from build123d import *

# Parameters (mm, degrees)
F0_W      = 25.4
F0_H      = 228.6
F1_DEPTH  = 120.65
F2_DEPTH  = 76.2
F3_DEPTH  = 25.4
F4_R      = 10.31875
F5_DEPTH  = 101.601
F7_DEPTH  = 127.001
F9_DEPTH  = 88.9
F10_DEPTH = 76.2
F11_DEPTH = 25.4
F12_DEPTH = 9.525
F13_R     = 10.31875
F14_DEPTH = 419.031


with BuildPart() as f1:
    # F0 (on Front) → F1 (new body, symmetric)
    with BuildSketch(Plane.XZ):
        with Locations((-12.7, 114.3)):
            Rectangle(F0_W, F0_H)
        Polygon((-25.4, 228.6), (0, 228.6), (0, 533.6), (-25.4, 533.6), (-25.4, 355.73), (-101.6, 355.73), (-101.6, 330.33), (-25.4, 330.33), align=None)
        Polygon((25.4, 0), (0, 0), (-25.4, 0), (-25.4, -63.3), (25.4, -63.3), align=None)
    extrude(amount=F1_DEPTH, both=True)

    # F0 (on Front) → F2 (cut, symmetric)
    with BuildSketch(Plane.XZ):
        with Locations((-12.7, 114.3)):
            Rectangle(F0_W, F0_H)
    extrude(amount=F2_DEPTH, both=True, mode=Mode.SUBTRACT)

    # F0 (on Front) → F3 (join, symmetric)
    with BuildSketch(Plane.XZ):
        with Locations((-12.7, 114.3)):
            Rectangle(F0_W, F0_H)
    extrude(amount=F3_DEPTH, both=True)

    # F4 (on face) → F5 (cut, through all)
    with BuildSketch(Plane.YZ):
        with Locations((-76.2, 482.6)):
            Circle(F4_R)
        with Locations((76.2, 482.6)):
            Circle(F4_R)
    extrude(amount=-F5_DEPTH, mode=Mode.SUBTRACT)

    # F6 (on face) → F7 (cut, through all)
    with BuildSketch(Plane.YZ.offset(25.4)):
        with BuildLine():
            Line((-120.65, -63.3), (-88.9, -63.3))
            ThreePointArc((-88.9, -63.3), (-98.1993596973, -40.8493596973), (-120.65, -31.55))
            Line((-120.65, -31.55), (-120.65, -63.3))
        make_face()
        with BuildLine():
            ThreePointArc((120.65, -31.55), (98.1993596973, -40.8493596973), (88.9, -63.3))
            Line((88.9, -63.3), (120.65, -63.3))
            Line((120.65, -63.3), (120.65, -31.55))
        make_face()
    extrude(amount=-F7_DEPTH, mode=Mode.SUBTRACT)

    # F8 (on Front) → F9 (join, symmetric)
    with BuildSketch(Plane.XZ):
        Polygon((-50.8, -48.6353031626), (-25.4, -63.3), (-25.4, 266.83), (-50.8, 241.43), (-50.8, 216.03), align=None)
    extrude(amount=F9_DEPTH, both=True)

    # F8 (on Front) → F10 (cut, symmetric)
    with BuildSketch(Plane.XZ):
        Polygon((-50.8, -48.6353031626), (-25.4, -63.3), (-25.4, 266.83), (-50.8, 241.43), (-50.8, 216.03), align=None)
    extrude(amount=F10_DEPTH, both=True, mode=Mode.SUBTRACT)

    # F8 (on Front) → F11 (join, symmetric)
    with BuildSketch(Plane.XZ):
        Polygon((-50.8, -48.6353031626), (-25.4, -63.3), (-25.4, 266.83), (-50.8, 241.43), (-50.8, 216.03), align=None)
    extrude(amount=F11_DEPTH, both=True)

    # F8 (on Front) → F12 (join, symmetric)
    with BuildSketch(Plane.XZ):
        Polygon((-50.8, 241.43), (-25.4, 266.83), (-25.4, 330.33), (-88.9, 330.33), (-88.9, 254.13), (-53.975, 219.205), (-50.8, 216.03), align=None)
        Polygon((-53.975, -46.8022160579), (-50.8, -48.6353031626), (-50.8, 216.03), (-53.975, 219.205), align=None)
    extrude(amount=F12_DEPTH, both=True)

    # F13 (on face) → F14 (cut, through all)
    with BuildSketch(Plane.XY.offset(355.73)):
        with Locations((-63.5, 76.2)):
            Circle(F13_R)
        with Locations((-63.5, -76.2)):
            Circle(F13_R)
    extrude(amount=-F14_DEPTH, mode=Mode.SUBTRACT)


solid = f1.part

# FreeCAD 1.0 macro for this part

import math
import FreeCAD as App
import Part
import Sketcher
Q = App.Units.Quantity

doc = App.newDocument("Part")
body = doc.addObject("PartDesign::Body", "Body")

# Sketch on XZ plane
sketch1 = doc.addObject("Sketcher::SketchObject", "Sketch")
body.addObject(sketch1)
sketch1.AttachmentSupport = (doc.XZ_Plane, [""])
sketch1.MapMode = "FlatFace"
sketch1.addGeometry(Part.LineSegment(App.Vector(0, 0, 0), App.Vector(0, 533.6, 0)), False)
sketch1.addGeometry(Part.LineSegment(App.Vector(0, 533.6, 0), App.Vector(-25.4, 533.6, 0)), False)
sketch1.addGeometry(Part.LineSegment(App.Vector(-25.4, 533.6, 0), App.Vector(-25.4, 355.73, 0)), False)
sketch1.addGeometry(Part.LineSegment(App.Vector(-25.4, 355.73, 0), App.Vector(-101.6, 355.73, 0)), False)
sketch1.addGeometry(Part.LineSegment(App.Vector(-101.6, 355.73, 0), App.Vector(-101.6, 330.33, 0)), False)
sketch1.addGeometry(Part.LineSegment(App.Vector(-101.6, 330.33, 0), App.Vector(-25.4, 330.33, 0)), False)
sketch1.addGeometry(Part.LineSegment(App.Vector(-25.4, 330.33, 0), App.Vector(-25.4, -63.3, 0)), False)
sketch1.addGeometry(Part.LineSegment(App.Vector(-25.4, -63.3, 0), App.Vector(25.4, -63.3, 0)), False)
sketch1.addGeometry(Part.LineSegment(App.Vector(25.4, -63.3, 0), App.Vector(25.4, 0, 0)), False)
sketch1.addGeometry(Part.LineSegment(App.Vector(25.4, 0, 0), App.Vector(0, 0, 0)), False)
sketch1.addConstraint(Sketcher.Constraint("Coincident", 0, 2, 1, 1))
sketch1.addConstraint(Sketcher.Constraint("Coincident", 1, 2, 2, 1))
sketch1.addConstraint(Sketcher.Constraint("Coincident", 2, 2, 3, 1))
sketch1.addConstraint(Sketcher.Constraint("Coincident", 3, 2, 4, 1))
sketch1.addConstraint(Sketcher.Constraint("Coincident", 4, 2, 5, 1))
sketch1.addConstraint(Sketcher.Constraint("Coincident", 5, 2, 6, 1))
sketch1.addConstraint(Sketcher.Constraint("Coincident", 6, 2, 7, 1))
sketch1.addConstraint(Sketcher.Constraint("Coincident", 7, 2, 8, 1))
sketch1.addConstraint(Sketcher.Constraint("Coincident", 8, 2, 9, 1))
sketch1.addConstraint(Sketcher.Constraint("Coincident", 9, 2, 0, 1))
sketch1.addConstraint(Sketcher.Constraint("Vertical", 0))
sketch1.addConstraint(Sketcher.Constraint("Horizontal", 1))
sketch1.addConstraint(Sketcher.Constraint("Vertical", 2))
sketch1.addConstraint(Sketcher.Constraint("Horizontal", 3))
sketch1.addConstraint(Sketcher.Constraint("Vertical", 4))
sketch1.addConstraint(Sketcher.Constraint("Horizontal", 5))
sketch1.addConstraint(Sketcher.Constraint("Vertical", 6))
sketch1.addConstraint(Sketcher.Constraint("Horizontal", 7))
sketch1.addConstraint(Sketcher.Constraint("Vertical", 8))
sketch1.addConstraint(Sketcher.Constraint("Horizontal", 9))
sketch1.addConstraint(Sketcher.Constraint("Coincident", 9, 2, -1, 1))
sketch1.addConstraint(Sketcher.Constraint("Vertical", 2, 2, 5, 2))
sketch1.addConstraint(Sketcher.Constraint("Equal", 1, 9))
sketch1.addConstraint(Sketcher.Constraint("Equal", 9, 4))
sketch1.addConstraint(Sketcher.Constraint("DistanceX", 1, 2, 1, 1, Q("1 in")))
sketch1.addConstraint(Sketcher.Constraint("DistanceX", 3, 2, 3, 1, Q("3 in")))
sketch1.addConstraint(Sketcher.Constraint("DistanceY", 6, 2, 1, 2, Q("23.5 in")))
sketch1.addConstraint(Sketcher.Constraint("DistanceY", 0, 1, 0, 2, Q("533.6 mm")))
sketch1.addConstraint(Sketcher.Constraint("DistanceY", 2, 2, 2, 1, Q("177.87 mm")))
pad1 = doc.addObject("PartDesign::Pad", "Pad")
body.addObject(pad1)
pad1.Profile = sketch1
pad1.Length = Q("9.5 in")
pad1.Midplane = True

# Sketch on XZ plane
sketch2 = doc.addObject("Sketcher::SketchObject", "Sketch001")
body.addObject(sketch2)
sketch2.AttachmentSupport = (doc.XZ_Plane, [""])
sketch2.MapMode = "FlatFace"
sketch2.addGeometry(Part.LineSegment(App.Vector(-25.4, 228.6, 0), App.Vector(-25.4, 0, 0)), False)
sketch2.addGeometry(Part.LineSegment(App.Vector(-25.4, 0, 0), App.Vector(0, 0, 0)), False)
sketch2.addGeometry(Part.LineSegment(App.Vector(0, 0, 0), App.Vector(0, 228.6, 0)), False)
sketch2.addGeometry(Part.LineSegment(App.Vector(0, 228.6, 0), App.Vector(-25.4, 228.6, 0)), False)
sketch2.addConstraint(Sketcher.Constraint("Coincident", 0, 2, 1, 1))
sketch2.addConstraint(Sketcher.Constraint("Coincident", 1, 2, 2, 1))
sketch2.addConstraint(Sketcher.Constraint("Coincident", 2, 2, 3, 1))
sketch2.addConstraint(Sketcher.Constraint("Coincident", 3, 2, 0, 1))
sketch2.addConstraint(Sketcher.Constraint("Vertical", 0))
sketch2.addConstraint(Sketcher.Constraint("Horizontal", 1))
sketch2.addConstraint(Sketcher.Constraint("Vertical", 2))
sketch2.addConstraint(Sketcher.Constraint("Horizontal", 3))
sketch2.addConstraint(Sketcher.Constraint("Coincident", 1, 2, -1, 1))
sketch2.addConstraint(Sketcher.Constraint("DistanceX", 1, 1, 1, 2, Q("1 in")))
sketch2.addConstraint(Sketcher.Constraint("DistanceY", 0, 2, 0, 1, Q("9 in")))
pocket1 = doc.addObject("PartDesign::Pocket", "Pocket")
body.addObject(pocket1)
pocket1.Profile = sketch2
pocket1.Length = Q("6 in")
pocket1.Midplane = True

# Sketch on XZ plane
sketch3 = doc.addObject("Sketcher::SketchObject", "Sketch002")
body.addObject(sketch3)
sketch3.AttachmentSupport = (doc.XZ_Plane, [""])
sketch3.MapMode = "FlatFace"
sketch3.addGeometry(Part.LineSegment(App.Vector(-25.4, 228.6, 0), App.Vector(-25.4, 0, 0)), False)
sketch3.addGeometry(Part.LineSegment(App.Vector(-25.4, 0, 0), App.Vector(0, 0, 0)), False)
sketch3.addGeometry(Part.LineSegment(App.Vector(0, 0, 0), App.Vector(0, 228.6, 0)), False)
sketch3.addGeometry(Part.LineSegment(App.Vector(0, 228.6, 0), App.Vector(-25.4, 228.6, 0)), False)
sketch3.addConstraint(Sketcher.Constraint("Coincident", 0, 2, 1, 1))
sketch3.addConstraint(Sketcher.Constraint("Coincident", 1, 2, 2, 1))
sketch3.addConstraint(Sketcher.Constraint("Coincident", 2, 2, 3, 1))
sketch3.addConstraint(Sketcher.Constraint("Coincident", 3, 2, 0, 1))
sketch3.addConstraint(Sketcher.Constraint("Vertical", 0))
sketch3.addConstraint(Sketcher.Constraint("Horizontal", 1))
sketch3.addConstraint(Sketcher.Constraint("Vertical", 2))
sketch3.addConstraint(Sketcher.Constraint("Horizontal", 3))
sketch3.addConstraint(Sketcher.Constraint("Coincident", 1, 2, -1, 1))
sketch3.addConstraint(Sketcher.Constraint("DistanceX", 1, 1, 1, 2, Q("1 in")))
sketch3.addConstraint(Sketcher.Constraint("DistanceY", 0, 2, 0, 1, Q("9 in")))
pad2 = doc.addObject("PartDesign::Pad", "Pad001")
body.addObject(pad2)
pad2.Profile = sketch3
pad2.Length = Q("2 in")
pad2.Midplane = True

# Sketch on YZ plane
sketch4 = doc.addObject("Sketcher::SketchObject", "Sketch003")
body.addObject(sketch4)
sketch4.AttachmentSupport = (doc.YZ_Plane, [""])
sketch4.MapMode = "FlatFace"
sketch4.addGeometry(Part.Circle(App.Vector(-76.2, 482.6, 0), App.Vector(0, 0, 1), 10.31875), False)
sketch4.addGeometry(Part.Circle(App.Vector(76.2, 482.6, 0), App.Vector(0, 0, 1), 10.31875), False)
sketch4.addConstraint(Sketcher.Constraint("Equal", 0, 1))
sketch4.addConstraint(Sketcher.Constraint("Symmetric", 0, 3, 1, 3, -2))
sketch4.addConstraint(Sketcher.Constraint("Diameter", 0, Q("0.8125 in")))
sketch4.addConstraint(Sketcher.Constraint("DistanceX", 0, 3, -1, 1, Q("3 in")))
sketch4.addConstraint(Sketcher.Constraint("DistanceY", -1, 1, 0, 3, Q("19 in")))
pocket2 = doc.addObject("PartDesign::Pocket", "Pocket001")
body.addObject(pocket2)
pocket2.Profile = sketch4
pocket2.Type = "ThroughAll"

# Sketch on YZ plane
sketch5 = doc.addObject("Sketcher::SketchObject", "Sketch004")
body.addObject(sketch5)
sketch5.AttachmentSupport = (doc.YZ_Plane, [""])
sketch5.MapMode = "FlatFace"
sketch5.AttachmentOffset = App.Placement(App.Vector(0, 0, 1 * 25.4), App.Rotation())
sketch5.addGeometry(Part.LineSegment(App.Vector(-120.65, -63.3, 0), App.Vector(-88.9, -63.3, 0)), False)
sketch5.addGeometry(Part.ArcOfCircle(Part.Circle(App.Vector(-120.65, -63.3, 0), App.Vector(0, 0, 1), 31.75), math.radians(0), math.radians(90)), False)
sketch5.addGeometry(Part.LineSegment(App.Vector(-120.65, -31.55, 0), App.Vector(-120.65, -63.3, 0)), False)
sketch5.addGeometry(Part.ArcOfCircle(Part.Circle(App.Vector(120.65, -63.3, 0), App.Vector(0, 0, 1), 31.75), math.radians(90), math.radians(180)), False)
sketch5.addGeometry(Part.LineSegment(App.Vector(88.9, -63.3, 0), App.Vector(120.65, -63.3, 0)), False)
sketch5.addGeometry(Part.LineSegment(App.Vector(120.65, -63.3, 0), App.Vector(120.65, -31.55, 0)), False)
sketch5.addConstraint(Sketcher.Constraint("Coincident", 0, 2, 1, 1))
sketch5.addConstraint(Sketcher.Constraint("Coincident", 1, 2, 2, 1))
sketch5.addConstraint(Sketcher.Constraint("Coincident", 2, 2, 0, 1))
sketch5.addConstraint(Sketcher.Constraint("Coincident", 3, 2, 4, 1))
sketch5.addConstraint(Sketcher.Constraint("Coincident", 4, 2, 5, 1))
sketch5.addConstraint(Sketcher.Constraint("Coincident", 5, 2, 3, 1))
sketch5.addConstraint(Sketcher.Constraint("Horizontal", 0))
sketch5.addConstraint(Sketcher.Constraint("Vertical", 2))
sketch5.addConstraint(Sketcher.Constraint("Horizontal", 4))
sketch5.addConstraint(Sketcher.Constraint("Vertical", 5))
sketch5.addConstraint(Sketcher.Constraint("Coincident", 2, 2, 1, 3))
sketch5.addConstraint(Sketcher.Constraint("Coincident", 4, 2, 3, 3))
sketch5.addConstraint(Sketcher.Constraint("Equal", 1, 3))
sketch5.addConstraint(Sketcher.Constraint("Symmetric", 1, 3, 3, 3, -2))
sketch5.addConstraint(Sketcher.Constraint("Radius", 1, Q("1.25 in")))
sketch5.addConstraint(Sketcher.Constraint("DistanceX", 0, 2, 3, 2, Q("7 in")))
sketch5.addConstraint(Sketcher.Constraint("DistanceY", 1, 3, -1, 1, Q("63.3 mm")))
pocket3 = doc.addObject("PartDesign::Pocket", "Pocket002")
body.addObject(pocket3)
pocket3.Profile = sketch5
pocket3.Type = "ThroughAll"

# Sketch on XZ plane
sketch6 = doc.addObject("Sketcher::SketchObject", "Sketch005")
body.addObject(sketch6)
sketch6.AttachmentSupport = (doc.XZ_Plane, [""])
sketch6.MapMode = "FlatFace"
sketch6.addGeometry(Part.LineSegment(App.Vector(-50.8, -48.635303, 0), App.Vector(-25.4, -63.3, 0)), False)
sketch6.addGeometry(Part.LineSegment(App.Vector(-25.4, -63.3, 0), App.Vector(-25.4, 266.83, 0)), False)
sketch6.addGeometry(Part.LineSegment(App.Vector(-25.4, 266.83, 0), App.Vector(-50.8, 241.43, 0)), False)
sketch6.addGeometry(Part.LineSegment(App.Vector(-50.8, 241.43, 0), App.Vector(-50.8, -48.635303, 0)), False)
sketch6.addConstraint(Sketcher.Constraint("Coincident", 0, 2, 1, 1))
sketch6.addConstraint(Sketcher.Constraint("Coincident", 1, 2, 2, 1))
sketch6.addConstraint(Sketcher.Constraint("Coincident", 2, 2, 3, 1))
sketch6.addConstraint(Sketcher.Constraint("Coincident", 3, 2, 0, 1))
sketch6.addConstraint(Sketcher.Constraint("Vertical", 1))
sketch6.addConstraint(Sketcher.Constraint("Vertical", 3))
sketch6.addConstraint(Sketcher.Constraint("DistanceX", 0, 2, -1, 1, Q("1 in")))
sketch6.addConstraint(Sketcher.Constraint("DistanceX", 2, 2, -1, 1, Q("2 in")))
sketch6.addConstraint(Sketcher.Constraint("Angle", 0, Q("-30 deg")))
sketch6.addConstraint(Sketcher.Constraint("Angle", 2, Q("-135 deg")))
sketch6.addConstraint(Sketcher.Constraint("DistanceY", 1, 1, 1, 2, Q("330.13 mm")))
sketch6.addConstraint(Sketcher.Constraint("DistanceY", 0, 2, -1, 1, Q("63.3 mm")))
pad3 = doc.addObject("PartDesign::Pad", "Pad002")
body.addObject(pad3)
pad3.Profile = sketch6
pad3.Length = Q("7 in")
pad3.Midplane = True

# Sketch on XZ plane
sketch7 = doc.addObject("Sketcher::SketchObject", "Sketch006")
body.addObject(sketch7)
sketch7.AttachmentSupport = (doc.XZ_Plane, [""])
sketch7.MapMode = "FlatFace"
sketch7.addGeometry(Part.LineSegment(App.Vector(-50.8, -48.635303, 0), App.Vector(-25.4, -63.3, 0)), False)
sketch7.addGeometry(Part.LineSegment(App.Vector(-25.4, -63.3, 0), App.Vector(-25.4, 266.83, 0)), False)
sketch7.addGeometry(Part.LineSegment(App.Vector(-25.4, 266.83, 0), App.Vector(-50.8, 241.43, 0)), False)
sketch7.addGeometry(Part.LineSegment(App.Vector(-50.8, 241.43, 0), App.Vector(-50.8, -48.635303, 0)), False)
sketch7.addConstraint(Sketcher.Constraint("Coincident", 0, 2, 1, 1))
sketch7.addConstraint(Sketcher.Constraint("Coincident", 1, 2, 2, 1))
sketch7.addConstraint(Sketcher.Constraint("Coincident", 2, 2, 3, 1))
sketch7.addConstraint(Sketcher.Constraint("Coincident", 3, 2, 0, 1))
sketch7.addConstraint(Sketcher.Constraint("Vertical", 1))
sketch7.addConstraint(Sketcher.Constraint("Vertical", 3))
sketch7.addConstraint(Sketcher.Constraint("DistanceX", 0, 2, -1, 1, Q("1 in")))
sketch7.addConstraint(Sketcher.Constraint("DistanceX", 2, 2, -1, 1, Q("2 in")))
sketch7.addConstraint(Sketcher.Constraint("Angle", 0, Q("-30 deg")))
sketch7.addConstraint(Sketcher.Constraint("Angle", 2, Q("-135 deg")))
sketch7.addConstraint(Sketcher.Constraint("DistanceY", 1, 1, 1, 2, Q("330.13 mm")))
sketch7.addConstraint(Sketcher.Constraint("DistanceY", 0, 2, -1, 1, Q("63.3 mm")))
pocket4 = doc.addObject("PartDesign::Pocket", "Pocket003")
body.addObject(pocket4)
pocket4.Profile = sketch7
pocket4.Length = Q("6 in")
pocket4.Midplane = True

# Sketch on XZ plane
sketch8 = doc.addObject("Sketcher::SketchObject", "Sketch007")
body.addObject(sketch8)
sketch8.AttachmentSupport = (doc.XZ_Plane, [""])
sketch8.MapMode = "FlatFace"
sketch8.addGeometry(Part.LineSegment(App.Vector(-50.8, -48.635303, 0), App.Vector(-25.4, -63.3, 0)), False)
sketch8.addGeometry(Part.LineSegment(App.Vector(-25.4, -63.3, 0), App.Vector(-25.4, 266.83, 0)), False)
sketch8.addGeometry(Part.LineSegment(App.Vector(-25.4, 266.83, 0), App.Vector(-50.8, 241.43, 0)), False)
sketch8.addGeometry(Part.LineSegment(App.Vector(-50.8, 241.43, 0), App.Vector(-50.8, -48.635303, 0)), False)
sketch8.addConstraint(Sketcher.Constraint("Coincident", 0, 2, 1, 1))
sketch8.addConstraint(Sketcher.Constraint("Coincident", 1, 2, 2, 1))
sketch8.addConstraint(Sketcher.Constraint("Coincident", 2, 2, 3, 1))
sketch8.addConstraint(Sketcher.Constraint("Coincident", 3, 2, 0, 1))
sketch8.addConstraint(Sketcher.Constraint("Vertical", 1))
sketch8.addConstraint(Sketcher.Constraint("Vertical", 3))
sketch8.addConstraint(Sketcher.Constraint("DistanceX", 0, 2, -1, 1, Q("1 in")))
sketch8.addConstraint(Sketcher.Constraint("DistanceX", 2, 2, -1, 1, Q("2 in")))
sketch8.addConstraint(Sketcher.Constraint("Angle", 0, Q("-30 deg")))
sketch8.addConstraint(Sketcher.Constraint("Angle", 2, Q("-135 deg")))
sketch8.addConstraint(Sketcher.Constraint("DistanceY", 1, 1, 1, 2, Q("330.13 mm")))
sketch8.addConstraint(Sketcher.Constraint("DistanceY", 0, 2, -1, 1, Q("63.3 mm")))
pad4 = doc.addObject("PartDesign::Pad", "Pad003")
body.addObject(pad4)
pad4.Profile = sketch8
pad4.Length = Q("2 in")
pad4.Midplane = True

# Sketch on XZ plane
sketch9 = doc.addObject("Sketcher::SketchObject", "Sketch008")
body.addObject(sketch9)
sketch9.AttachmentSupport = (doc.XZ_Plane, [""])
sketch9.MapMode = "FlatFace"
sketch9.addGeometry(Part.LineSegment(App.Vector(-50.8, 241.43, 0), App.Vector(-25.4, 266.83, 0)), False)
sketch9.addGeometry(Part.LineSegment(App.Vector(-25.4, 266.83, 0), App.Vector(-25.4, 330.33, 0)), False)
sketch9.addGeometry(Part.LineSegment(App.Vector(-25.4, 330.33, 0), App.Vector(-88.9, 330.33, 0)), False)
sketch9.addGeometry(Part.LineSegment(App.Vector(-88.9, 330.33, 0), App.Vector(-88.9, 254.13, 0)), False)
sketch9.addGeometry(Part.LineSegment(App.Vector(-88.9, 254.13, 0), App.Vector(-53.975, 219.205, 0)), False)
sketch9.addGeometry(Part.LineSegment(App.Vector(-53.975, 219.205, 0), App.Vector(-53.975, -46.802216, 0)), False)
sketch9.addGeometry(Part.LineSegment(App.Vector(-53.975, -46.802216, 0), App.Vector(-50.8, -48.635303, 0)), False)
sketch9.addGeometry(Part.LineSegment(App.Vector(-50.8, -48.635303, 0), App.Vector(-50.8, 241.43, 0)), False)
sketch9.addConstraint(Sketcher.Constraint("Coincident", 0, 2, 1, 1))
sketch9.addConstraint(Sketcher.Constraint("Coincident", 1, 2, 2, 1))
sketch9.addConstraint(Sketcher.Constraint("Coincident", 2, 2, 3, 1))
sketch9.addConstraint(Sketcher.Constraint("Coincident", 3, 2, 4, 1))
sketch9.addConstraint(Sketcher.Constraint("Coincident", 4, 2, 5, 1))
sketch9.addConstraint(Sketcher.Constraint("Coincident", 5, 2, 6, 1))
sketch9.addConstraint(Sketcher.Constraint("Coincident", 6, 2, 7, 1))
sketch9.addConstraint(Sketcher.Constraint("Coincident", 7, 2, 0, 1))
sketch9.addConstraint(Sketcher.Constraint("Vertical", 1))
sketch9.addConstraint(Sketcher.Constraint("Horizontal", 2))
sketch9.addConstraint(Sketcher.Constraint("Vertical", 3))
sketch9.addConstraint(Sketcher.Constraint("Vertical", 5))
sketch9.addConstraint(Sketcher.Constraint("Vertical", 7))
sketch9.addConstraint(Sketcher.Constraint("Perpendicular", 0, 4))
sketch9.addConstraint(Sketcher.Constraint("Equal", 2, 1))
sketch9.addConstraint(Sketcher.Constraint("DistanceY", 3, 2, 3, 1, Q("3 in")))
sketch9.addConstraint(Sketcher.Constraint("DistanceX", 2, 2, 2, 1, Q("2.5 in")))
sketch9.addConstraint(Sketcher.Constraint("DistanceX", 0, 2, -1, 1, Q("1 in")))
sketch9.addConstraint(Sketcher.Constraint("DistanceX", 6, 2, -1, 1, Q("2 in")))
sketch9.addConstraint(Sketcher.Constraint("Angle", 0, Q("45 deg")))
sketch9.addConstraint(Sketcher.Constraint("Angle", 6, Q("-30 deg")))
sketch9.addConstraint(Sketcher.Constraint("DistanceX", 4, 2, -1, 1, Q("2.125 in")))
sketch9.addConstraint(Sketcher.Constraint("DistanceY", -1, 1, 0, 2, Q("266.83 mm")))
sketch9.addConstraint(Sketcher.Constraint("DistanceY", 5, 2, 5, 1, Q("266.007216 mm")))
pad5 = doc.addObject("PartDesign::Pad", "Pad004")
body.addObject(pad5)
pad5.Profile = sketch9
pad5.Length = Q("0.75 in")
pad5.Midplane = True

# Sketch on XY plane
sketch10 = doc.addObject("Sketcher::SketchObject", "Sketch009")
body.addObject(sketch10)
sketch10.AttachmentSupport = (doc.XY_Plane, [""])
sketch10.MapMode = "FlatFace"
sketch10.AttachmentOffset = App.Placement(App.Vector(0, 0, 355.73), App.Rotation())
sketch10.addGeometry(Part.Circle(App.Vector(-63.5, 76.2, 0), App.Vector(0, 0, 1), 10.31875), False)
sketch10.addGeometry(Part.Circle(App.Vector(-63.5, -76.2, 0), App.Vector(0, 0, 1), 10.31875), False)
sketch10.addConstraint(Sketcher.Constraint("Equal", 0, 1))
sketch10.addConstraint(Sketcher.Constraint("Symmetric", 0, 3, 1, 3, -1))
sketch10.addConstraint(Sketcher.Constraint("Diameter", 0, Q("0.8125 in")))
sketch10.addConstraint(Sketcher.Constraint("DistanceY", -1, 1, 0, 3, Q("3 in")))
sketch10.addConstraint(Sketcher.Constraint("DistanceX", 0, 3, -1, 1, Q("2.5 in")))
pocket5 = doc.addObject("PartDesign::Pocket", "Pocket004")
body.addObject(pocket5)
pocket5.Profile = sketch10
pocket5.Type = "ThroughAll"

doc.recompute()
